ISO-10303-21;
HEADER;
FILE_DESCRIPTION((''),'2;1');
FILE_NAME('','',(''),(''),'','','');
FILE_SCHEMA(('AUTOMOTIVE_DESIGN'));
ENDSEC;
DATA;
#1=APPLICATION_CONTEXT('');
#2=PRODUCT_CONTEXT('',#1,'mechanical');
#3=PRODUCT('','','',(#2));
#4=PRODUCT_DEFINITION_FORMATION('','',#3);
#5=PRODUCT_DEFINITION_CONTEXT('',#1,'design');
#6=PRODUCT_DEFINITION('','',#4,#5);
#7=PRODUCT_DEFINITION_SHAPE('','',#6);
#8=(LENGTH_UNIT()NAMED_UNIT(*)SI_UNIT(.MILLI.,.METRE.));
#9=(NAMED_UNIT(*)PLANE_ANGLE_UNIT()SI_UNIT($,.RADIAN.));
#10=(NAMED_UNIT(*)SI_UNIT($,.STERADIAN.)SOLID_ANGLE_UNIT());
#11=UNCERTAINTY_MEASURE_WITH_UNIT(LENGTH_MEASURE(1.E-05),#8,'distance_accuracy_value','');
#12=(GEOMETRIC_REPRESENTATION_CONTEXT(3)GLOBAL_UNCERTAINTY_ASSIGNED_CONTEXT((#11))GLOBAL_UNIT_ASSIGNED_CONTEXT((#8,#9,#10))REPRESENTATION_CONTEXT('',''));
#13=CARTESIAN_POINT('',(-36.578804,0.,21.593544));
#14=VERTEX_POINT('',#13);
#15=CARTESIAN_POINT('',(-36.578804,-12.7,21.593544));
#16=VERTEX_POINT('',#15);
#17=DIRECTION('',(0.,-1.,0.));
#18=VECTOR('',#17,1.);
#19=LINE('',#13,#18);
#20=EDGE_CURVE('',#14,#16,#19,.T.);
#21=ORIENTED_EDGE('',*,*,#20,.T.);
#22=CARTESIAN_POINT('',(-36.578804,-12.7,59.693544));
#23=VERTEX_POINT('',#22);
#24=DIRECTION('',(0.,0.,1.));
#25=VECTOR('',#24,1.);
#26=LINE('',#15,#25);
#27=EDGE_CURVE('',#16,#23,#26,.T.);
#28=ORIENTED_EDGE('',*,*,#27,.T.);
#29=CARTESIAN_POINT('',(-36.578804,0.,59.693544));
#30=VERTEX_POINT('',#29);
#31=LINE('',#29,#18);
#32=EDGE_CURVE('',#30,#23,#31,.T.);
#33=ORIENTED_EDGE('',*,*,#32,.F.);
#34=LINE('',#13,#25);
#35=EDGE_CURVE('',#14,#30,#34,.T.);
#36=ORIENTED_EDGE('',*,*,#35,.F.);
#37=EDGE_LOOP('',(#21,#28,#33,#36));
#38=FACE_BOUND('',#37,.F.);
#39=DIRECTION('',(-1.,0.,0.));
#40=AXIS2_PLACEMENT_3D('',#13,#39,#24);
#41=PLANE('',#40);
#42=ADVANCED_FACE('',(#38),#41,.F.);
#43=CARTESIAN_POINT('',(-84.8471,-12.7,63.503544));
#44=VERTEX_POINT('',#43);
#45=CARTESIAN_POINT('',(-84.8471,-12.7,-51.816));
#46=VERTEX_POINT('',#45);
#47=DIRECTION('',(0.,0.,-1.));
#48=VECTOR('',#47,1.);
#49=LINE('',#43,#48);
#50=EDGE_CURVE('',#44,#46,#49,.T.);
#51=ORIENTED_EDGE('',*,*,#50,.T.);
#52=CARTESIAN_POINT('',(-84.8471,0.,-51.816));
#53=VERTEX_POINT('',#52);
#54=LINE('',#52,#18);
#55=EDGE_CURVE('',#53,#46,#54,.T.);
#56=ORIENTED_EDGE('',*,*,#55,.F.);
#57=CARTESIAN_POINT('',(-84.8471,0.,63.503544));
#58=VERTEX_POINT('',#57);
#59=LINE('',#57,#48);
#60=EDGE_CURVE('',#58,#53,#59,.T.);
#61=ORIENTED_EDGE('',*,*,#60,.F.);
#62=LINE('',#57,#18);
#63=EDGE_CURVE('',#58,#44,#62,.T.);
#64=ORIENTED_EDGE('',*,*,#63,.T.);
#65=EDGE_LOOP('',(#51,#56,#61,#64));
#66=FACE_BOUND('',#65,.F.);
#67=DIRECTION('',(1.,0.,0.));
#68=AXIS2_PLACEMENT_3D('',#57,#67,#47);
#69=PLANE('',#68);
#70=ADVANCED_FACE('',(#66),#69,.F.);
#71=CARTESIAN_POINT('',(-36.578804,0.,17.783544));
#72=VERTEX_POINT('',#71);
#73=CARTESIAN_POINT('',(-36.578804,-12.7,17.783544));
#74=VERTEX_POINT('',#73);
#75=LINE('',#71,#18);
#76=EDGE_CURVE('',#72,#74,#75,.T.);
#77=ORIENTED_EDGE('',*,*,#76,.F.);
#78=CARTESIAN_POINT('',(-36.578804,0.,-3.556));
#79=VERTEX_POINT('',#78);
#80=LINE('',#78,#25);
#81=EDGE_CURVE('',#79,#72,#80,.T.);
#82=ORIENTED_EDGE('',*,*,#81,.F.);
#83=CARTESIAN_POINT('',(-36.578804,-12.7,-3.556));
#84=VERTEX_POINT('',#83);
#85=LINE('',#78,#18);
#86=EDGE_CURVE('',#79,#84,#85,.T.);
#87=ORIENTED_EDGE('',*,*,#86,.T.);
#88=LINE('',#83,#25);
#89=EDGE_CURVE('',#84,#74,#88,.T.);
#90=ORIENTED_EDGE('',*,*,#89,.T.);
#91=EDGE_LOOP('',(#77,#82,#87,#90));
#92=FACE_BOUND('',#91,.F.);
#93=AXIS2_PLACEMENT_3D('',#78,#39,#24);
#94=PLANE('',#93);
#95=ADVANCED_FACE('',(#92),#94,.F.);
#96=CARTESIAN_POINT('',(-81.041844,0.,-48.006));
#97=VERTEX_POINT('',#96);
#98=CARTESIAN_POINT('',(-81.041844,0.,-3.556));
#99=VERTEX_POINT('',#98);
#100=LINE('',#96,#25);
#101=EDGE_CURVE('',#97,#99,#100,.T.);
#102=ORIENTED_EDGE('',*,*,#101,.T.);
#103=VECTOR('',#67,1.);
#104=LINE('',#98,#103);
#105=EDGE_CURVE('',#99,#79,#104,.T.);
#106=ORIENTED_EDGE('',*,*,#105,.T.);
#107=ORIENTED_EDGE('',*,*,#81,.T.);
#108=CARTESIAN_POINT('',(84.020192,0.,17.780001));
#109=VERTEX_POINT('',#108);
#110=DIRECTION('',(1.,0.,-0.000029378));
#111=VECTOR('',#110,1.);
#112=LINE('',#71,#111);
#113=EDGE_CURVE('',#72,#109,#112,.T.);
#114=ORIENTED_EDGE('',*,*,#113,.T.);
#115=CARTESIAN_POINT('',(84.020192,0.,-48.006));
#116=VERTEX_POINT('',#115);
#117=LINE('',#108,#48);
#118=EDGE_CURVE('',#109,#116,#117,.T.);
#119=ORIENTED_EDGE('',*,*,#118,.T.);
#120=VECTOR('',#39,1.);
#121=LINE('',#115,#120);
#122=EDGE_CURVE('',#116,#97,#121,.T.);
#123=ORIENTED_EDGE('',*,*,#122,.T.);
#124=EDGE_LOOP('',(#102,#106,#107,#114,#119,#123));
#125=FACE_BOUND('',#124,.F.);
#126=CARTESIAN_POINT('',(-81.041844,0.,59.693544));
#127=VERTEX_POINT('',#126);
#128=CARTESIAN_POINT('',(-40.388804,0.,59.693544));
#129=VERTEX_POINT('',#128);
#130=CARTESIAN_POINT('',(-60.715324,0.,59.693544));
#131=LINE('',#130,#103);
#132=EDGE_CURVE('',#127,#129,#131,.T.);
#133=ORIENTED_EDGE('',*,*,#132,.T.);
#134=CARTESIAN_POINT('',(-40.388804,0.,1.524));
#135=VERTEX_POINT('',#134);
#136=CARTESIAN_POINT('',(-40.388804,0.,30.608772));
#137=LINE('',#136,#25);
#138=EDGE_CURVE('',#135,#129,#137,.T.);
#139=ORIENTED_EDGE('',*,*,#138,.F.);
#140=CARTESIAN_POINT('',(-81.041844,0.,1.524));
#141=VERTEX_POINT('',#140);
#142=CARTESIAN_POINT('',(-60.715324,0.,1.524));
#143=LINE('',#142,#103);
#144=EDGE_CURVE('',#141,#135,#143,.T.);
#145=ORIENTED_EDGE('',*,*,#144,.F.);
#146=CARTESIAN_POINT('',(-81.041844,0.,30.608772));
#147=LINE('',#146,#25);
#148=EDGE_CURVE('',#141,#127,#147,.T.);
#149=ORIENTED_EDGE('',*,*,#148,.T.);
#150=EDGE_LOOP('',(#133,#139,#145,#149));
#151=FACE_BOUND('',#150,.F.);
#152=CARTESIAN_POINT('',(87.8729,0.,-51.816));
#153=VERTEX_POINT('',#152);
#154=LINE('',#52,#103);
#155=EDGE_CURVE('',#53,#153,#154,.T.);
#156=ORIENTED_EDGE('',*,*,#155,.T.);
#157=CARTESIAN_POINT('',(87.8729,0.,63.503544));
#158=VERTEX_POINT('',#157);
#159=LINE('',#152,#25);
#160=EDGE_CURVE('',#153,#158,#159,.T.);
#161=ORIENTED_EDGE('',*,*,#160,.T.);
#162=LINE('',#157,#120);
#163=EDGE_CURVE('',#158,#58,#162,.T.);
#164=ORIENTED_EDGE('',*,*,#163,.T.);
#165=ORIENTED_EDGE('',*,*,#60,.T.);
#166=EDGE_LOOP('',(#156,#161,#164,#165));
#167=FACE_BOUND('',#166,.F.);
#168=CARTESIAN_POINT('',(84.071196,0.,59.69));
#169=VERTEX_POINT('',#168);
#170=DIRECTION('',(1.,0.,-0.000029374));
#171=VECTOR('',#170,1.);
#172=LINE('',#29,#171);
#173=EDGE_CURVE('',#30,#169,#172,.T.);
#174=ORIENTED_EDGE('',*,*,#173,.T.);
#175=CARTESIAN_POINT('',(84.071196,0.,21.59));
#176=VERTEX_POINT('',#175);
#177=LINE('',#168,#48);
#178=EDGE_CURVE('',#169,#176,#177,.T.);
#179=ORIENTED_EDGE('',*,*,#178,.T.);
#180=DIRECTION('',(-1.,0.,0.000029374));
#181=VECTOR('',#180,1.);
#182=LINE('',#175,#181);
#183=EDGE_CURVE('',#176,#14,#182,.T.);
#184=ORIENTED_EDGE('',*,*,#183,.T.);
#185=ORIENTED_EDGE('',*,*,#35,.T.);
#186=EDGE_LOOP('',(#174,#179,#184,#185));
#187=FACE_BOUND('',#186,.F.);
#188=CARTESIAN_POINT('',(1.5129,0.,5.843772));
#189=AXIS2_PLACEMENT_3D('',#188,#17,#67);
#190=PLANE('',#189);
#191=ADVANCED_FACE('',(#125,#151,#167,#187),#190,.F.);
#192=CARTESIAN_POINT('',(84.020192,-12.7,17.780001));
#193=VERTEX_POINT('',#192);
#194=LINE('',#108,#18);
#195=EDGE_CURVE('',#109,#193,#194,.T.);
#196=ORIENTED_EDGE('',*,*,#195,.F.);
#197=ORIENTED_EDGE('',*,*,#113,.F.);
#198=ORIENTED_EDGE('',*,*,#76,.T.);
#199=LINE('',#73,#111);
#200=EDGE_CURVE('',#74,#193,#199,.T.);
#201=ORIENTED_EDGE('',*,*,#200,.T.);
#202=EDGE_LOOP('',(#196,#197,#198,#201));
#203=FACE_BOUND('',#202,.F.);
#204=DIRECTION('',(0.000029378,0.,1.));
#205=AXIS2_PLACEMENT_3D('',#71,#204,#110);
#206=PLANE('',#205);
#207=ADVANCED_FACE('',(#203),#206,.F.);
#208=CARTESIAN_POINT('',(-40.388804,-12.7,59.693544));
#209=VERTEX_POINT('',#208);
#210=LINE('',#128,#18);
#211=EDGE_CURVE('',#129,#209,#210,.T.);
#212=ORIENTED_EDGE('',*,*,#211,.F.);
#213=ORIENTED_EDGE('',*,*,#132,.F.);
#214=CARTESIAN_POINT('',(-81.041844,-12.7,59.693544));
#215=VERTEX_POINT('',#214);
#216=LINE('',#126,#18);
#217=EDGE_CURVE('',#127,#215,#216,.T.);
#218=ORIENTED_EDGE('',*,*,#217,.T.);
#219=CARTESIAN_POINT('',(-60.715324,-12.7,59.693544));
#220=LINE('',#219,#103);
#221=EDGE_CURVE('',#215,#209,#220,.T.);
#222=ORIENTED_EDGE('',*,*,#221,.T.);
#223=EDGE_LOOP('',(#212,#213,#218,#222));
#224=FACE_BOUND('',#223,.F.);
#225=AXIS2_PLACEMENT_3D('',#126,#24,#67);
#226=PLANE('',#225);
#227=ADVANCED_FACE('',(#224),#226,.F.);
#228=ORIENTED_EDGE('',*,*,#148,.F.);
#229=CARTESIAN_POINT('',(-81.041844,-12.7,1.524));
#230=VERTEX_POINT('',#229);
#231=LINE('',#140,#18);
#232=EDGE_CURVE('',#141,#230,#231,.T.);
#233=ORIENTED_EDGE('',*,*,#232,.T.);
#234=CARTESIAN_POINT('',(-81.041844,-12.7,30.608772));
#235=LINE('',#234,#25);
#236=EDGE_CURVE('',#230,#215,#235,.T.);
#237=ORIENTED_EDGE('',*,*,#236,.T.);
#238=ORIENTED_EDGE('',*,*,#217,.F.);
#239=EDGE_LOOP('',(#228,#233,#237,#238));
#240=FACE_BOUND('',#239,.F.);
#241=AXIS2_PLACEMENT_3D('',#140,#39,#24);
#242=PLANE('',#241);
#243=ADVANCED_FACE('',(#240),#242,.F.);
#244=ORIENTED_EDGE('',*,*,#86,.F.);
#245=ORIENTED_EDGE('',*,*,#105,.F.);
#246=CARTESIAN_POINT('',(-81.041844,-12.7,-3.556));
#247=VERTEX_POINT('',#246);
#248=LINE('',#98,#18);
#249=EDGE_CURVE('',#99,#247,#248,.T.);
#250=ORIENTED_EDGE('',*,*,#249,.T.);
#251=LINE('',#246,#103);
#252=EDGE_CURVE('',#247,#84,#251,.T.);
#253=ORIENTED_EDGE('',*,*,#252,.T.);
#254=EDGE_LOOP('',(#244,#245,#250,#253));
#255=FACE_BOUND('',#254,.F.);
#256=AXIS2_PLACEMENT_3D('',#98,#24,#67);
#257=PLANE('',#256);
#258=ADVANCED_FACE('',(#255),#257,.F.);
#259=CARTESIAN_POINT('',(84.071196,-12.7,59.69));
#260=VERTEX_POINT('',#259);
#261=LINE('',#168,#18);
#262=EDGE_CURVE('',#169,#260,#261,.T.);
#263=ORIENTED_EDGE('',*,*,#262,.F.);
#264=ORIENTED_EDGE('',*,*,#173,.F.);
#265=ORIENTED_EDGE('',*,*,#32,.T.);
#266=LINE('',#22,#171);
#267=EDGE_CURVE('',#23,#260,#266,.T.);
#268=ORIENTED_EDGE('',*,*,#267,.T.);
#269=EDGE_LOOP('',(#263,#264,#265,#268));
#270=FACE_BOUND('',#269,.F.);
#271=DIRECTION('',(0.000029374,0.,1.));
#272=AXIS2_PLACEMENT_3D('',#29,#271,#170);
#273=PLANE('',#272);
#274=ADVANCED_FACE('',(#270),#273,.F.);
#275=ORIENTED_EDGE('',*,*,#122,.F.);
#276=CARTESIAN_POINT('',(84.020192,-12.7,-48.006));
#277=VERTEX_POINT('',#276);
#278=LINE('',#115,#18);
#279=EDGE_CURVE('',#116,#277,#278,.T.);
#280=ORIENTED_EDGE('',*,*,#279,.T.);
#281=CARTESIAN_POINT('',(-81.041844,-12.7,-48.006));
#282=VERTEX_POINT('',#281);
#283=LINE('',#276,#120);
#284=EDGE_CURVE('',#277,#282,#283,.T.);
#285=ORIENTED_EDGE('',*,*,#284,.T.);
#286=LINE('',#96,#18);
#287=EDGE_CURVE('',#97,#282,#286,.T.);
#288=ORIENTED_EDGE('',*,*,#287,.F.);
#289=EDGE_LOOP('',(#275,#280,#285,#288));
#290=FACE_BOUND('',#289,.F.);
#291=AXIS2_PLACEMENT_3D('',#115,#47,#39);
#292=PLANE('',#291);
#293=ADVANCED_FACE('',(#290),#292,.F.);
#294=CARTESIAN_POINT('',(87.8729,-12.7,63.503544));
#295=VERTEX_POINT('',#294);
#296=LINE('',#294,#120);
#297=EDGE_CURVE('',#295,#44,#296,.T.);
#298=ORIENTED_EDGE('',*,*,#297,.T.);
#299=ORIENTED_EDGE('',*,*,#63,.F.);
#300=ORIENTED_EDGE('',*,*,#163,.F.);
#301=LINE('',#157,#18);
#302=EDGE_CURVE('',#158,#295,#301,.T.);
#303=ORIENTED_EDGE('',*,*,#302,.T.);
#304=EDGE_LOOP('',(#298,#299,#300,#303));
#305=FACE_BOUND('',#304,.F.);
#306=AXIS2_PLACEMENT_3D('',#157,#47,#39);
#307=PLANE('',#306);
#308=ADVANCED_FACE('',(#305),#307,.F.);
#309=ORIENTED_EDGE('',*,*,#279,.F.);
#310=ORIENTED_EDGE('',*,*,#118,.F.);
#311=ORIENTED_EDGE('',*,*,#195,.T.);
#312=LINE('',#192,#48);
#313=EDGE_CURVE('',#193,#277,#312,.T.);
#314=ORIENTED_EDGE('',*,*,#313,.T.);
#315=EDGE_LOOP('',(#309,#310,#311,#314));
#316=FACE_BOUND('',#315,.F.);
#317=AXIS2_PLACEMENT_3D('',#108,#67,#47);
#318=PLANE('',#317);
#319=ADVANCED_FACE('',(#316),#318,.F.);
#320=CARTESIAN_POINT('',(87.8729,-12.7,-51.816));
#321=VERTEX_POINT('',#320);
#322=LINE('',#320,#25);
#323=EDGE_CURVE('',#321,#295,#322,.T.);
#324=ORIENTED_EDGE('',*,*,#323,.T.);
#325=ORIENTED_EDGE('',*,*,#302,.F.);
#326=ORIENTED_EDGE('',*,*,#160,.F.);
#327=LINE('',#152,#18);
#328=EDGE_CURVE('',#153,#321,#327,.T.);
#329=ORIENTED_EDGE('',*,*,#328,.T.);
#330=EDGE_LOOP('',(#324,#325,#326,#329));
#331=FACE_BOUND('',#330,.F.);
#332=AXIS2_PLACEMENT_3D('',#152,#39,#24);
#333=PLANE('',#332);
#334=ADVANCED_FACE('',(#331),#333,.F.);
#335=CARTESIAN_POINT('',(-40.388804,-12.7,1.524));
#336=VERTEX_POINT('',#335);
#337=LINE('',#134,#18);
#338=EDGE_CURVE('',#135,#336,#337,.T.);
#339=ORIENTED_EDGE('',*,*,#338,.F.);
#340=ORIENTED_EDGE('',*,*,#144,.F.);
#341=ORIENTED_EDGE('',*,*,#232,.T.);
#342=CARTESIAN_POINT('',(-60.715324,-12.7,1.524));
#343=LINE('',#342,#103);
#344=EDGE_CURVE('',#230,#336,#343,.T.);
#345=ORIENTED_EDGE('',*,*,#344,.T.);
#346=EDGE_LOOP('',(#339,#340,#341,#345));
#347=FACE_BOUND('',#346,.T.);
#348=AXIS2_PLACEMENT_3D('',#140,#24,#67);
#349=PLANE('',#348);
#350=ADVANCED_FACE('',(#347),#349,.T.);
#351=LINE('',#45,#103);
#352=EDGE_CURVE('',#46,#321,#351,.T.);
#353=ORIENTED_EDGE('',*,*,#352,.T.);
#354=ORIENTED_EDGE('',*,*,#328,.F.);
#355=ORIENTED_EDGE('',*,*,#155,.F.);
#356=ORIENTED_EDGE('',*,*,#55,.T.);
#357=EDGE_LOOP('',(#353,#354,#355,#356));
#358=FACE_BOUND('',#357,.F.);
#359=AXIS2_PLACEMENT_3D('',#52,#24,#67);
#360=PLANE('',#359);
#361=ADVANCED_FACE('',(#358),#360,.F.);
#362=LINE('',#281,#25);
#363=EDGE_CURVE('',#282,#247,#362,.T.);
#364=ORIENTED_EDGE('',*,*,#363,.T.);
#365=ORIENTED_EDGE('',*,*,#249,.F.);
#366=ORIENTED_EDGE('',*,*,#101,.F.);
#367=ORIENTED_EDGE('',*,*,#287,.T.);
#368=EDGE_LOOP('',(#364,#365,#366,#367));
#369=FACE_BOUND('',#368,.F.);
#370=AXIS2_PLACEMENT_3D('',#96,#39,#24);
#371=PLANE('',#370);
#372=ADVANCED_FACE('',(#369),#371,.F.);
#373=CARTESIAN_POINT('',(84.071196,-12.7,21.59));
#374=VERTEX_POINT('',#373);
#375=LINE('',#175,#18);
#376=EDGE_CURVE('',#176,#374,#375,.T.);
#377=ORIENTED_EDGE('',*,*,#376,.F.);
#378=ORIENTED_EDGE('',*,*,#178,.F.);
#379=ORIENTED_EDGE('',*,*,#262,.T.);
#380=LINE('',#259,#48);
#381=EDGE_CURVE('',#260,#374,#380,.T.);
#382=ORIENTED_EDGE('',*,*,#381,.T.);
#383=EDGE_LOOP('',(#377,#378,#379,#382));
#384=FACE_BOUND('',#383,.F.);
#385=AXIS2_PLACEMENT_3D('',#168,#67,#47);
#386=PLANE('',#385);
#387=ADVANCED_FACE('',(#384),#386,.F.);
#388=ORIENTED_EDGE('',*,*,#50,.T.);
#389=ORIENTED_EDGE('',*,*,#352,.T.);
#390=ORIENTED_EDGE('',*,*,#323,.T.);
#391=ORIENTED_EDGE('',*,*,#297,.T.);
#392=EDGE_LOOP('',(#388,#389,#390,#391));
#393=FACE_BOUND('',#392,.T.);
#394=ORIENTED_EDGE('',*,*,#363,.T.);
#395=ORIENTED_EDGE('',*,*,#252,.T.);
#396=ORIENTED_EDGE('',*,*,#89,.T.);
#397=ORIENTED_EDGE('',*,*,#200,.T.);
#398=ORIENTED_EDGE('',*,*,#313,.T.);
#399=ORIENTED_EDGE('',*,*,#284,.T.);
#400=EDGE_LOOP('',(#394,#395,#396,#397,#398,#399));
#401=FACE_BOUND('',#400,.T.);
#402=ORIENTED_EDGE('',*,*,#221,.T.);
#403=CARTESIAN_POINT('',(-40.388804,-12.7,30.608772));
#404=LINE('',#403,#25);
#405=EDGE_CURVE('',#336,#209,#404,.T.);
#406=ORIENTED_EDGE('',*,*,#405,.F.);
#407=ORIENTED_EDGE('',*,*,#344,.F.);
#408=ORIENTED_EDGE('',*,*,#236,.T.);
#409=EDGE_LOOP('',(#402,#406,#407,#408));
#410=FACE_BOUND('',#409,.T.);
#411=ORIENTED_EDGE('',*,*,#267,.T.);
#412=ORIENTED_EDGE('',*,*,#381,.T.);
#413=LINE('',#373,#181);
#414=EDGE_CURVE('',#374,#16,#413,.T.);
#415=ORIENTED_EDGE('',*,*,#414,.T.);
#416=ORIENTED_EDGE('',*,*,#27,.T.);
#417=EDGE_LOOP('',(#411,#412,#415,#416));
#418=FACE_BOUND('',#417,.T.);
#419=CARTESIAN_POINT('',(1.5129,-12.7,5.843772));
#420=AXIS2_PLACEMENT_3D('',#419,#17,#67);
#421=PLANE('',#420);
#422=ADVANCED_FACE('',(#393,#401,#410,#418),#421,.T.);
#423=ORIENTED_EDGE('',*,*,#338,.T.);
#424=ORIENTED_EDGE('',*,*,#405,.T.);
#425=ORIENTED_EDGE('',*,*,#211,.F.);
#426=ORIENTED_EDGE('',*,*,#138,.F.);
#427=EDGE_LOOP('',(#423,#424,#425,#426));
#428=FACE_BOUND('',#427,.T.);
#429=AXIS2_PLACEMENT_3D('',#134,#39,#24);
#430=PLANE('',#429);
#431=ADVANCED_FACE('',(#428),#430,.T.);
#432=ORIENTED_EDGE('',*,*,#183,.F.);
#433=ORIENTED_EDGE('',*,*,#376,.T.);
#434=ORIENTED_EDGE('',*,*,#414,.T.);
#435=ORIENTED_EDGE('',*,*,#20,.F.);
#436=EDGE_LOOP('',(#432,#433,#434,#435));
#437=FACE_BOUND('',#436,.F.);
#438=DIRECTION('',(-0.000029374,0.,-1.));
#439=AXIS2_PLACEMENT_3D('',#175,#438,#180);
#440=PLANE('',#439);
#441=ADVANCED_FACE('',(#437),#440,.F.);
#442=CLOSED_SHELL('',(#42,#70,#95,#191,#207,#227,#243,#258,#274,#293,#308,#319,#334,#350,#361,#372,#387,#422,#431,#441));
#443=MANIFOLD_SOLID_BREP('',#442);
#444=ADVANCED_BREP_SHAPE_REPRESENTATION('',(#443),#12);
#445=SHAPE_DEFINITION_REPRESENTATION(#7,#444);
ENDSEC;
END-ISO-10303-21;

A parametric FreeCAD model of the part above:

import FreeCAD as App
import Part
import Sketcher
Q = App.Units.Quantity

doc = App.newDocument("Part")
body = doc.addObject("PartDesign::Body", "Body")

sketch1 = body.newObject("Sketcher::SketchObject", "Sketch")
sketch1.AttachmentSupport = (doc.getObject("XZ_Plane"), [""])
sketch1.MapMode = "FlatFace"
sketch1.addGeometry([
    Part.LineSegment(App.Vector(-85, 64, 0), App.Vector(-85, -52, 0)),
    Part.LineSegment(App.Vector(-85, -52, 0), App.Vector(88, -52, 0)),
    Part.LineSegment(App.Vector(88, -52, 0), App.Vector(88, 64, 0)),
    Part.LineSegment(App.Vector(88, 64, 0), App.Vector(-85, 64, 0)),
    Part.LineSegment(App.Vector(84, 18, 0), App.Vector(84, -48, 0)),
    Part.LineSegment(App.Vector(84, -48, 0), App.Vector(-81, -48, 0)),
    Part.LineSegment(App.Vector(-81, -48, 0), App.Vector(-81, -4, 0)),
    Part.LineSegment(App.Vector(-81, -4, 0), App.Vector(-37, -4, 0)),
    Part.LineSegment(App.Vector(-37, -4, 0), App.Vector(-37, 18, 0)),
    Part.LineSegment(App.Vector(-37, 18, 0), App.Vector(84, 18, 0)),
    Part.LineSegment(App.Vector(-40, 2, 0), App.Vector(-81, 2, 0)),
    Part.LineSegment(App.Vector(-81, 2, 0), App.Vector(-81, 60, 0)),
    Part.LineSegment(App.Vector(-81, 60, 0), App.Vector(-40, 60, 0)),
    Part.LineSegment(App.Vector(-40, 60, 0), App.Vector(-40, 2, 0)),
    Part.LineSegment(App.Vector(-37, 60, 0), App.Vector(84, 60, 0)),
    Part.LineSegment(App.Vector(84, 60, 0), App.Vector(84, 22, 0)),
    Part.LineSegment(App.Vector(84, 22, 0), App.Vector(-37, 22, 0)),
    Part.LineSegment(App.Vector(-37, 22, 0), App.Vector(-37, 60, 0)),
], False)
sketch1.addConstraint([
    Sketcher.Constraint("Coincident", 0, 2, 1, 1),
    Sketcher.Constraint("Coincident", 1, 2, 2, 1),
    Sketcher.Constraint("Coincident", 2, 2, 3, 1),
    Sketcher.Constraint("Coincident", 3, 2, 0, 1),
    Sketcher.Constraint("Coincident", 4, 2, 5, 1),
    Sketcher.Constraint("Coincident", 5, 2, 6, 1),
    Sketcher.Constraint("Coincident", 6, 2, 7, 1),
    Sketcher.Constraint("Coincident", 7, 2, 8, 1),
    Sketcher.Constraint("Coincident", 8, 2, 9, 1),
    Sketcher.Constraint("Coincident", 9, 2, 4, 1),
    Sketcher.Constraint("Coincident", 10, 2, 11, 1),
    Sketcher.Constraint("Coincident", 11, 2, 12, 1),
    Sketcher.Constraint("Coincident", 12, 2, 13, 1),
    Sketcher.Constraint("Coincident", 13, 2, 10, 1),
    Sketcher.Constraint("Coincident", 14, 2, 15, 1),
    Sketcher.Constraint("Coincident", 15, 2, 16, 1),
    Sketcher.Constraint("Coincident", 16, 2, 17, 1),
    Sketcher.Constraint("Coincident", 17, 2, 14, 1),
    Sketcher.Constraint("Vertical", 0),
    Sketcher.Constraint("Horizontal", 1),
    Sketcher.Constraint("Vertical", 2),
    Sketcher.Constraint("Horizontal", 3),
    Sketcher.Constraint("Vertical", 4),
    Sketcher.Constraint("Horizontal", 5),
    Sketcher.Constraint("Vertical", 6),
    Sketcher.Constraint("Horizontal", 7),
    Sketcher.Constraint("Vertical", 8),
    Sketcher.Constraint("Horizontal", 10),
    Sketcher.Constraint("Vertical", 11),
    Sketcher.Constraint("Horizontal", 12),
    Sketcher.Constraint("Vertical", 13),
    Sketcher.Constraint("Vertical", 15),
    Sketcher.Constraint("Vertical", 17),
    Sketcher.Constraint("Parallel", 9, 14),
    Sketcher.Constraint("Parallel", 14, 16),
    Sketcher.Constraint("Horizontal", 12, 2, 17, 2),
    Sketcher.Constraint("Vertical", 6, 2, 10, 2),
    Sketcher.Constraint("Vertical", 8, 2, 16, 2),
    Sketcher.Constraint("DistanceX", 1, 1, 1, 2, Q("6.8 in")),
    Sketcher.Constraint("DistanceY", 15, 2, 15, 1, Q("1.5 in")),
    Sketcher.Constraint("DistanceY", 4, 2, 4, 1, Q("2.59 in")),
    Sketcher.Constraint("DistanceY", 6, 1, 6, 2, Q("1.75 in")),
    Sketcher.Constraint("DistanceY", -1, 1, 9, 2, Q("0.7 in")),
    Sketcher.Constraint("DistanceY", 0, 2, 6, 2, Q("1.9 in")),
    Sketcher.Constraint("DistanceY", 8, 2, 3, 2, Q("1.8 in")),
    Sketcher.Constraint("DistanceY", 6, 2, 10, 2, Q("0.2 in")),
    Sketcher.Constraint("DistanceX", 12, 2, 14, 2, Q("4.9 in")),
    Sketcher.Constraint("Distance", 14, Q("4.75 in")),
    Sketcher.Constraint("DistanceY", -1, 1, 14, 2, Q("2.35 in")),
    Sketcher.Constraint("DistanceX", 7, 1, 7, 2, 44.46304),
    Sketcher.Constraint("DistanceX", 0, 2, -1, 1, 84.8471),
    Sketcher.Constraint("DistanceX", 5, 2, 5, 1, 165.062036),
    Sketcher.Constraint("DistanceY", 0, 2, 0, 1, 115.319544),
    Sketcher.Constraint("DistanceX", -1, 1, 4, 2, 84.020192),
])
pad1 = body.newObject("PartDesign::Pad", "Pad")
pad1.Profile = sketch1
pad1.Length = Q("0.5 in")

doc.recompute()
